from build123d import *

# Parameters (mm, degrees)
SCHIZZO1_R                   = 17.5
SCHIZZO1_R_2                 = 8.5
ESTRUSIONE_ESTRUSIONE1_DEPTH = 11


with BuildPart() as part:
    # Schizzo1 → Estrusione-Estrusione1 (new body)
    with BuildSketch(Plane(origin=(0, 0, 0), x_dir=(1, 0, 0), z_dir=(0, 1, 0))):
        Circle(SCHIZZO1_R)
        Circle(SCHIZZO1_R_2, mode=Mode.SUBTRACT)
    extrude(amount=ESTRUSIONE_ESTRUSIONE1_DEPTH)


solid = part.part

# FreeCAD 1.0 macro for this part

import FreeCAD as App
import Part
import Sketcher
Q = App.Units.Quantity

doc = App.newDocument("Part")
params = doc.addObject("Spreadsheet::Sheet", "Params")
for row, (alias, value) in enumerate([
    ("sketch1_diameter", "35 mm"),
    ("sketch1_diameter2", "17 mm"),
    ("pad1_length", "11 mm"),
], start=1):
    params.set(f"A{row}", alias)
    params.set(f"B{row}", "=" + value)
    params.setAlias(f"B{row}", alias)

body = doc.addObject("PartDesign::Body", "Body")

# Sketch on XZ plane
sketch1 = body.newObject("Sketcher::SketchObject", "Sketch")
sketch1.AttachmentSupport = (doc.getObject("XZ_Plane"), [""])
sketch1.MapMode = "FlatFace"
sketch1.addGeometry(Part.Circle(App.Vector(0, 0, 0), App.Vector(0, 0, 1), 17.5), False)
sketch1.addGeometry(Part.Circle(App.Vector(0, 0, 0), App.Vector(0, 0, 1), 8.5), False)
sketch1.addConstraint(Sketcher.Constraint("Coincident", 0, 3, -1, 1))
sketch1.addConstraint(Sketcher.Constraint("Coincident", 1, 3, -1, 1))
sketch1.addConstraint(Sketcher.Constraint("Diameter", 0, Q("35 mm")))
sketch1.addConstraint(Sketcher.Constraint("Diameter", 1, Q("17 mm")))
sketch1.setExpression("Constraints[2]", "Params.sketch1_diameter")
sketch1.setExpression("Constraints[3]", "Params.sketch1_diameter2")
pad1 = body.newObject("PartDesign::Pad", "Pad")
pad1.Profile = sketch1
pad1.setExpression("Length", "Params.pad1_length")
pad1.Reversed = True

doc.recompute()
